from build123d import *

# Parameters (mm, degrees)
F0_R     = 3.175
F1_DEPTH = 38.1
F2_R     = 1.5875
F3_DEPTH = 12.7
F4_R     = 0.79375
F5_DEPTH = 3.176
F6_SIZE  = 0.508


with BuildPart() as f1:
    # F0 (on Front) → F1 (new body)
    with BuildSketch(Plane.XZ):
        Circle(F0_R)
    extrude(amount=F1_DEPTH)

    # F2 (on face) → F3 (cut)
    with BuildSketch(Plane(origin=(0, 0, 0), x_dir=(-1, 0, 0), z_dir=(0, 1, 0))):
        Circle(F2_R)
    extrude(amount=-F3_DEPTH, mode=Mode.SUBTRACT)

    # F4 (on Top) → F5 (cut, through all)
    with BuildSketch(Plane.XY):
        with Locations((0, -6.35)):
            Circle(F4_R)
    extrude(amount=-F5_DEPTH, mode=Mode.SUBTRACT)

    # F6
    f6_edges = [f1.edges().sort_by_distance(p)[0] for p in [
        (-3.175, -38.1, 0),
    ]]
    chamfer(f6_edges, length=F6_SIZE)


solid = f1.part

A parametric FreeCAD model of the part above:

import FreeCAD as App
import Part
import Sketcher

V = App.Vector
Q = App.Units.Quantity


def edges_at(feature, points):
    """Names of the edges that pass closest to the given points."""
    edges = feature.Shape.Edges
    near = lambda p: min(range(len(edges)), key=lambda i: edges[i].distToShape(Part.Vertex(*p))[0])
    return sorted({f"Edge{near(p) + 1}" for p in points})

doc = App.newDocument("Part")
body = doc.addObject("PartDesign::Body", "Body")

sketch1 = body.newObject("Sketcher::SketchObject", "Sketch")
sketch1.AttachmentSupport = (doc.getObject("XZ_Plane"), [""])
sketch1.MapMode = "FlatFace"
sketch1.addGeometry(Part.Circle(V(0, 0, 0), V(0, 0, 1), 3.175), False)
sketch1.addConstraint([
    Sketcher.Constraint("Coincident", 0, 3, -1, 1),
    Sketcher.Constraint("Diameter", 0, Q("0.25 in")),
])
pad1 = body.newObject("PartDesign::Pad", "Pad")
pad1.Profile = sketch1
pad1.Length = Q("1.5 in")

sketch2 = body.newObject("Sketcher::SketchObject", "Sketch001")
sketch2.AttachmentSupport = (doc.getObject("XZ_Plane"), [""])
sketch2.MapMode = "FlatFace"
sketch2.addGeometry(Part.Circle(V(0, 0, 0), V(0, 0, 1), 1.5875), False)
sketch2.addConstraint([
    Sketcher.Constraint("Coincident", 0, 3, -1, 1),
    Sketcher.Constraint("Diameter", 0, Q("0.125 in")),
])
pocket1 = body.newObject("PartDesign::Pocket", "Pocket")
pocket1.Profile = sketch2
pocket1.Length = Q("0.5 in")
pocket1.Reversed = True

sketch3 = body.newObject("Sketcher::SketchObject", "Sketch002")
sketch3.AttachmentSupport = (doc.getObject("XY_Plane"), [""])
sketch3.MapMode = "FlatFace"
sketch3.addGeometry(Part.Circle(V(0, -6.35, 0), V(0, 0, 1), 0.79375), False)
sketch3.addConstraint([
    Sketcher.Constraint("PointOnObject", 0, 3, -2),
    Sketcher.Constraint("Diameter", 0, Q("0.0625 in")),
    Sketcher.Constraint("DistanceY", 0, 3, -1, 1, Q("0.25 in")),
])
pocket2 = body.newObject("PartDesign::Pocket", "Pocket001")
pocket2.Profile = sketch3
pocket2.Type = "ThroughAll"
doc.recompute()

chamfer = body.newObject("PartDesign::Chamfer", "Chamfer")
chamfer.Base = (pocket2, edges_at(pocket2, [(-3.175, -38.1, 0)]))
chamfer.Size = Q("0.02 in")

doc.recompute()
